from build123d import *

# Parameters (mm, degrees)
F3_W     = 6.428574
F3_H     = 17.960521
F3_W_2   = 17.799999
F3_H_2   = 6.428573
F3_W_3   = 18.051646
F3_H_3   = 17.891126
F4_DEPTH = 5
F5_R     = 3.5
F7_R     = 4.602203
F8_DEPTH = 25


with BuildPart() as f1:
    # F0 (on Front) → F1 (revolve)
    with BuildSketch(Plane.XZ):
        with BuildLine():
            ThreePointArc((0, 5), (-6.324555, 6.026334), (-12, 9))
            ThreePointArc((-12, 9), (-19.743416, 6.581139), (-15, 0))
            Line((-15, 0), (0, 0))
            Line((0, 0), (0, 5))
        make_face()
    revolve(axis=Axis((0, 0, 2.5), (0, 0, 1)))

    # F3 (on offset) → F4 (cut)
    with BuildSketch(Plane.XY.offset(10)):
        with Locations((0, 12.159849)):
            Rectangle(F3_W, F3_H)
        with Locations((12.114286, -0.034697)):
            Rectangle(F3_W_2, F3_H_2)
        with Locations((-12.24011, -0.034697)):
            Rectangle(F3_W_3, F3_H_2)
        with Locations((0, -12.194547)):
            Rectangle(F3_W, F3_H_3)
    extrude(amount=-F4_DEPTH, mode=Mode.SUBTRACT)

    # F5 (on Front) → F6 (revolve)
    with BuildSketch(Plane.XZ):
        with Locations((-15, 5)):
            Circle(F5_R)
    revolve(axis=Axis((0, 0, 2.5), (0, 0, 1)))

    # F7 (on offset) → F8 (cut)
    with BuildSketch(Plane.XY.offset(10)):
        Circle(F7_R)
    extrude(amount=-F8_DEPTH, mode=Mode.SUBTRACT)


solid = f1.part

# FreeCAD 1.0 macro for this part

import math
import FreeCAD as App
import Part
import Sketcher

V = App.Vector


def add_polygon(sketch, points):
    """Adds a closed chain of lines whose ends are joined by coincident constraints."""
    first, n = sketch.GeometryCount, len(points)
    for a, b in zip(points, points[1:] + points[:1]):
        sketch.addGeometry(Part.LineSegment(App.Vector(*a, 0), App.Vector(*b, 0)), False)
    for i in range(n):
        sketch.addConstraint(Sketcher.Constraint("Coincident", first + i, 2, first + (i + 1) % n, 1))

doc = App.newDocument("Part")
body = doc.addObject("PartDesign::Body", "Body")

# Sketch on XZ plane
sketch1 = body.newObject("Sketcher::SketchObject", "Sketch")
sketch1.AttachmentSupport = (doc.getObject("XZ_Plane"), [""])
sketch1.MapMode = "FlatFace"
sketch1.addGeometry([
    Part.ArcOfCircle(Part.Circle(V(0, 25, 0), V(0, 0, 1), 20), math.radians(-127), math.radians(-90)),
    Part.ArcOfCircle(Part.Circle(V(-15, 5, 0), V(0, 0, 1), 5), math.radians(53), math.radians(270)),
    Part.LineSegment(V(-15, 0, 0), V(0, 0, 0)),
    Part.LineSegment(V(0, 0, 0), V(0, 5, 0)),
], False)
sketch1.addConstraint([
    Sketcher.Constraint("Tangent", 0, 1, 1, 1),
    Sketcher.Constraint("Tangent", 1, 2, 2, 1),
    Sketcher.Constraint("Coincident", 2, 2, 3, 1),
    Sketcher.Constraint("Coincident", 3, 2, 0, 2),
    Sketcher.Constraint("Horizontal", 2),
    Sketcher.Constraint("Vertical", 3),
    Sketcher.Constraint("Coincident", 2, 2, -1, 1),
    Sketcher.Constraint("PointOnObject", 0, 3, -2),
    Sketcher.Constraint("Horizontal", 1, 3, 3, 2),
    Sketcher.Constraint("Radius", 0, 20.000001),
    Sketcher.Constraint("Radius", 1, 5.0),
])
revolution = body.newObject("PartDesign::Revolution", "Revolution")
revolution.Profile = sketch1
revolution.ReferenceAxis = (sketch1, ["V_Axis"])
revolution.Angle = 360

# Sketch on XY plane
sketch2 = body.newObject("Sketcher::SketchObject", "Sketch001")
sketch2.AttachmentSupport = (doc.getObject("XY_Plane"), [""])
sketch2.MapMode = "FlatFace"
sketch2.AttachmentOffset = App.Placement(V(0, 0, 10), App.Rotation())
add_polygon(sketch2, [(-3, 21), (-3, 3), (-21, 3), (-21, -3), (-3, -3), (-3, 3), (3, 3), (3, -3), (21, -3), (21, 3), (3, 3), (3, 21)])  # lines 0-11
add_polygon(sketch2, [(-3, -3), (-3, -21), (3, -21), (3, -3)])  # lines 12-15
sketch2.addConstraint([
    Sketcher.Constraint("Vertical", 0),
    Sketcher.Constraint("Horizontal", 1),
    Sketcher.Constraint("Vertical", 2),
    Sketcher.Constraint("Horizontal", 3),
    Sketcher.Constraint("Vertical", 4),
    Sketcher.Constraint("Horizontal", 5),
    Sketcher.Constraint("Vertical", 6),
    Sketcher.Constraint("Horizontal", 7),
    Sketcher.Constraint("Vertical", 8),
    Sketcher.Constraint("Horizontal", 9),
    Sketcher.Constraint("Vertical", 10),
    Sketcher.Constraint("Horizontal", 11),
    Sketcher.Constraint("Vertical", 12),
    Sketcher.Constraint("Horizontal", 13),
    Sketcher.Constraint("Vertical", 14),
    Sketcher.Constraint("Horizontal", 15),
    Sketcher.Constraint("Coincident", 4, 2, 0, 2),
    Sketcher.Constraint("Coincident", 9, 2, 5, 2),
    Sketcher.Constraint("Coincident", 14, 2, 6, 2),
    Sketcher.Constraint("Coincident", 15, 2, 3, 2),
    Sketcher.Constraint("Symmetric", 10, 2, 12, 2, -1, 1),
    Sketcher.Constraint("Equal", 15, 2),
    Sketcher.Constraint("DistanceX", 7, 1, 7, 2, 17.799999),
    Sketcher.Constraint("DistanceY", 0, 2, 0, 1, 17.96052),
    Sketcher.Constraint("DistanceY", 12, 2, 4, 2, 24.319699),
    Sketcher.Constraint("DistanceX", 1, 2, 1, 1, 18.051646),
    Sketcher.Constraint("DistanceX", 5, 1, 5, 2, 6.428574),
])
pocket1 = body.newObject("PartDesign::Pocket", "Pocket")
pocket1.Profile = sketch2
pocket1.Length = 5

# Sketch on XZ plane
sketch3 = body.newObject("Sketcher::SketchObject", "Sketch002")
sketch3.AttachmentSupport = (doc.getObject("XZ_Plane"), [""])
sketch3.MapMode = "FlatFace"
sketch3.addGeometry(Part.Circle(V(-15, 5, 0), V(0, 0, 1), 3.5), False)
sketch3.addConstraint([
    Sketcher.Constraint("Diameter", 0, 7.0),
    Sketcher.Constraint("DistanceX", 0, 3, -1, 1, 15.0),
    Sketcher.Constraint("DistanceY", -1, 1, 0, 3, 5.0),
])
revolution2 = body.newObject("PartDesign::Revolution", "Revolution001")
revolution2.Profile = sketch3
revolution2.ReferenceAxis = (sketch3, ["V_Axis"])
revolution2.Angle = 360

# Sketch on XY plane
sketch4 = body.newObject("Sketcher::SketchObject", "Sketch003")
sketch4.AttachmentSupport = (doc.getObject("XY_Plane"), [""])
sketch4.MapMode = "FlatFace"
sketch4.AttachmentOffset = App.Placement(V(0, 0, 10), App.Rotation())
sketch4.addGeometry(Part.Circle(V(0, 0, 0), V(0, 0, 1), 4.6), False)
sketch4.addConstraint([
    Sketcher.Constraint("Coincident", 0, 3, -1, 1),
    Sketcher.Constraint("Diameter", 0, 9.204406),
])
pocket2 = body.newObject("PartDesign::Pocket", "Pocket001")
pocket2.Profile = sketch4
pocket2.Length = 25

doc.recompute()
